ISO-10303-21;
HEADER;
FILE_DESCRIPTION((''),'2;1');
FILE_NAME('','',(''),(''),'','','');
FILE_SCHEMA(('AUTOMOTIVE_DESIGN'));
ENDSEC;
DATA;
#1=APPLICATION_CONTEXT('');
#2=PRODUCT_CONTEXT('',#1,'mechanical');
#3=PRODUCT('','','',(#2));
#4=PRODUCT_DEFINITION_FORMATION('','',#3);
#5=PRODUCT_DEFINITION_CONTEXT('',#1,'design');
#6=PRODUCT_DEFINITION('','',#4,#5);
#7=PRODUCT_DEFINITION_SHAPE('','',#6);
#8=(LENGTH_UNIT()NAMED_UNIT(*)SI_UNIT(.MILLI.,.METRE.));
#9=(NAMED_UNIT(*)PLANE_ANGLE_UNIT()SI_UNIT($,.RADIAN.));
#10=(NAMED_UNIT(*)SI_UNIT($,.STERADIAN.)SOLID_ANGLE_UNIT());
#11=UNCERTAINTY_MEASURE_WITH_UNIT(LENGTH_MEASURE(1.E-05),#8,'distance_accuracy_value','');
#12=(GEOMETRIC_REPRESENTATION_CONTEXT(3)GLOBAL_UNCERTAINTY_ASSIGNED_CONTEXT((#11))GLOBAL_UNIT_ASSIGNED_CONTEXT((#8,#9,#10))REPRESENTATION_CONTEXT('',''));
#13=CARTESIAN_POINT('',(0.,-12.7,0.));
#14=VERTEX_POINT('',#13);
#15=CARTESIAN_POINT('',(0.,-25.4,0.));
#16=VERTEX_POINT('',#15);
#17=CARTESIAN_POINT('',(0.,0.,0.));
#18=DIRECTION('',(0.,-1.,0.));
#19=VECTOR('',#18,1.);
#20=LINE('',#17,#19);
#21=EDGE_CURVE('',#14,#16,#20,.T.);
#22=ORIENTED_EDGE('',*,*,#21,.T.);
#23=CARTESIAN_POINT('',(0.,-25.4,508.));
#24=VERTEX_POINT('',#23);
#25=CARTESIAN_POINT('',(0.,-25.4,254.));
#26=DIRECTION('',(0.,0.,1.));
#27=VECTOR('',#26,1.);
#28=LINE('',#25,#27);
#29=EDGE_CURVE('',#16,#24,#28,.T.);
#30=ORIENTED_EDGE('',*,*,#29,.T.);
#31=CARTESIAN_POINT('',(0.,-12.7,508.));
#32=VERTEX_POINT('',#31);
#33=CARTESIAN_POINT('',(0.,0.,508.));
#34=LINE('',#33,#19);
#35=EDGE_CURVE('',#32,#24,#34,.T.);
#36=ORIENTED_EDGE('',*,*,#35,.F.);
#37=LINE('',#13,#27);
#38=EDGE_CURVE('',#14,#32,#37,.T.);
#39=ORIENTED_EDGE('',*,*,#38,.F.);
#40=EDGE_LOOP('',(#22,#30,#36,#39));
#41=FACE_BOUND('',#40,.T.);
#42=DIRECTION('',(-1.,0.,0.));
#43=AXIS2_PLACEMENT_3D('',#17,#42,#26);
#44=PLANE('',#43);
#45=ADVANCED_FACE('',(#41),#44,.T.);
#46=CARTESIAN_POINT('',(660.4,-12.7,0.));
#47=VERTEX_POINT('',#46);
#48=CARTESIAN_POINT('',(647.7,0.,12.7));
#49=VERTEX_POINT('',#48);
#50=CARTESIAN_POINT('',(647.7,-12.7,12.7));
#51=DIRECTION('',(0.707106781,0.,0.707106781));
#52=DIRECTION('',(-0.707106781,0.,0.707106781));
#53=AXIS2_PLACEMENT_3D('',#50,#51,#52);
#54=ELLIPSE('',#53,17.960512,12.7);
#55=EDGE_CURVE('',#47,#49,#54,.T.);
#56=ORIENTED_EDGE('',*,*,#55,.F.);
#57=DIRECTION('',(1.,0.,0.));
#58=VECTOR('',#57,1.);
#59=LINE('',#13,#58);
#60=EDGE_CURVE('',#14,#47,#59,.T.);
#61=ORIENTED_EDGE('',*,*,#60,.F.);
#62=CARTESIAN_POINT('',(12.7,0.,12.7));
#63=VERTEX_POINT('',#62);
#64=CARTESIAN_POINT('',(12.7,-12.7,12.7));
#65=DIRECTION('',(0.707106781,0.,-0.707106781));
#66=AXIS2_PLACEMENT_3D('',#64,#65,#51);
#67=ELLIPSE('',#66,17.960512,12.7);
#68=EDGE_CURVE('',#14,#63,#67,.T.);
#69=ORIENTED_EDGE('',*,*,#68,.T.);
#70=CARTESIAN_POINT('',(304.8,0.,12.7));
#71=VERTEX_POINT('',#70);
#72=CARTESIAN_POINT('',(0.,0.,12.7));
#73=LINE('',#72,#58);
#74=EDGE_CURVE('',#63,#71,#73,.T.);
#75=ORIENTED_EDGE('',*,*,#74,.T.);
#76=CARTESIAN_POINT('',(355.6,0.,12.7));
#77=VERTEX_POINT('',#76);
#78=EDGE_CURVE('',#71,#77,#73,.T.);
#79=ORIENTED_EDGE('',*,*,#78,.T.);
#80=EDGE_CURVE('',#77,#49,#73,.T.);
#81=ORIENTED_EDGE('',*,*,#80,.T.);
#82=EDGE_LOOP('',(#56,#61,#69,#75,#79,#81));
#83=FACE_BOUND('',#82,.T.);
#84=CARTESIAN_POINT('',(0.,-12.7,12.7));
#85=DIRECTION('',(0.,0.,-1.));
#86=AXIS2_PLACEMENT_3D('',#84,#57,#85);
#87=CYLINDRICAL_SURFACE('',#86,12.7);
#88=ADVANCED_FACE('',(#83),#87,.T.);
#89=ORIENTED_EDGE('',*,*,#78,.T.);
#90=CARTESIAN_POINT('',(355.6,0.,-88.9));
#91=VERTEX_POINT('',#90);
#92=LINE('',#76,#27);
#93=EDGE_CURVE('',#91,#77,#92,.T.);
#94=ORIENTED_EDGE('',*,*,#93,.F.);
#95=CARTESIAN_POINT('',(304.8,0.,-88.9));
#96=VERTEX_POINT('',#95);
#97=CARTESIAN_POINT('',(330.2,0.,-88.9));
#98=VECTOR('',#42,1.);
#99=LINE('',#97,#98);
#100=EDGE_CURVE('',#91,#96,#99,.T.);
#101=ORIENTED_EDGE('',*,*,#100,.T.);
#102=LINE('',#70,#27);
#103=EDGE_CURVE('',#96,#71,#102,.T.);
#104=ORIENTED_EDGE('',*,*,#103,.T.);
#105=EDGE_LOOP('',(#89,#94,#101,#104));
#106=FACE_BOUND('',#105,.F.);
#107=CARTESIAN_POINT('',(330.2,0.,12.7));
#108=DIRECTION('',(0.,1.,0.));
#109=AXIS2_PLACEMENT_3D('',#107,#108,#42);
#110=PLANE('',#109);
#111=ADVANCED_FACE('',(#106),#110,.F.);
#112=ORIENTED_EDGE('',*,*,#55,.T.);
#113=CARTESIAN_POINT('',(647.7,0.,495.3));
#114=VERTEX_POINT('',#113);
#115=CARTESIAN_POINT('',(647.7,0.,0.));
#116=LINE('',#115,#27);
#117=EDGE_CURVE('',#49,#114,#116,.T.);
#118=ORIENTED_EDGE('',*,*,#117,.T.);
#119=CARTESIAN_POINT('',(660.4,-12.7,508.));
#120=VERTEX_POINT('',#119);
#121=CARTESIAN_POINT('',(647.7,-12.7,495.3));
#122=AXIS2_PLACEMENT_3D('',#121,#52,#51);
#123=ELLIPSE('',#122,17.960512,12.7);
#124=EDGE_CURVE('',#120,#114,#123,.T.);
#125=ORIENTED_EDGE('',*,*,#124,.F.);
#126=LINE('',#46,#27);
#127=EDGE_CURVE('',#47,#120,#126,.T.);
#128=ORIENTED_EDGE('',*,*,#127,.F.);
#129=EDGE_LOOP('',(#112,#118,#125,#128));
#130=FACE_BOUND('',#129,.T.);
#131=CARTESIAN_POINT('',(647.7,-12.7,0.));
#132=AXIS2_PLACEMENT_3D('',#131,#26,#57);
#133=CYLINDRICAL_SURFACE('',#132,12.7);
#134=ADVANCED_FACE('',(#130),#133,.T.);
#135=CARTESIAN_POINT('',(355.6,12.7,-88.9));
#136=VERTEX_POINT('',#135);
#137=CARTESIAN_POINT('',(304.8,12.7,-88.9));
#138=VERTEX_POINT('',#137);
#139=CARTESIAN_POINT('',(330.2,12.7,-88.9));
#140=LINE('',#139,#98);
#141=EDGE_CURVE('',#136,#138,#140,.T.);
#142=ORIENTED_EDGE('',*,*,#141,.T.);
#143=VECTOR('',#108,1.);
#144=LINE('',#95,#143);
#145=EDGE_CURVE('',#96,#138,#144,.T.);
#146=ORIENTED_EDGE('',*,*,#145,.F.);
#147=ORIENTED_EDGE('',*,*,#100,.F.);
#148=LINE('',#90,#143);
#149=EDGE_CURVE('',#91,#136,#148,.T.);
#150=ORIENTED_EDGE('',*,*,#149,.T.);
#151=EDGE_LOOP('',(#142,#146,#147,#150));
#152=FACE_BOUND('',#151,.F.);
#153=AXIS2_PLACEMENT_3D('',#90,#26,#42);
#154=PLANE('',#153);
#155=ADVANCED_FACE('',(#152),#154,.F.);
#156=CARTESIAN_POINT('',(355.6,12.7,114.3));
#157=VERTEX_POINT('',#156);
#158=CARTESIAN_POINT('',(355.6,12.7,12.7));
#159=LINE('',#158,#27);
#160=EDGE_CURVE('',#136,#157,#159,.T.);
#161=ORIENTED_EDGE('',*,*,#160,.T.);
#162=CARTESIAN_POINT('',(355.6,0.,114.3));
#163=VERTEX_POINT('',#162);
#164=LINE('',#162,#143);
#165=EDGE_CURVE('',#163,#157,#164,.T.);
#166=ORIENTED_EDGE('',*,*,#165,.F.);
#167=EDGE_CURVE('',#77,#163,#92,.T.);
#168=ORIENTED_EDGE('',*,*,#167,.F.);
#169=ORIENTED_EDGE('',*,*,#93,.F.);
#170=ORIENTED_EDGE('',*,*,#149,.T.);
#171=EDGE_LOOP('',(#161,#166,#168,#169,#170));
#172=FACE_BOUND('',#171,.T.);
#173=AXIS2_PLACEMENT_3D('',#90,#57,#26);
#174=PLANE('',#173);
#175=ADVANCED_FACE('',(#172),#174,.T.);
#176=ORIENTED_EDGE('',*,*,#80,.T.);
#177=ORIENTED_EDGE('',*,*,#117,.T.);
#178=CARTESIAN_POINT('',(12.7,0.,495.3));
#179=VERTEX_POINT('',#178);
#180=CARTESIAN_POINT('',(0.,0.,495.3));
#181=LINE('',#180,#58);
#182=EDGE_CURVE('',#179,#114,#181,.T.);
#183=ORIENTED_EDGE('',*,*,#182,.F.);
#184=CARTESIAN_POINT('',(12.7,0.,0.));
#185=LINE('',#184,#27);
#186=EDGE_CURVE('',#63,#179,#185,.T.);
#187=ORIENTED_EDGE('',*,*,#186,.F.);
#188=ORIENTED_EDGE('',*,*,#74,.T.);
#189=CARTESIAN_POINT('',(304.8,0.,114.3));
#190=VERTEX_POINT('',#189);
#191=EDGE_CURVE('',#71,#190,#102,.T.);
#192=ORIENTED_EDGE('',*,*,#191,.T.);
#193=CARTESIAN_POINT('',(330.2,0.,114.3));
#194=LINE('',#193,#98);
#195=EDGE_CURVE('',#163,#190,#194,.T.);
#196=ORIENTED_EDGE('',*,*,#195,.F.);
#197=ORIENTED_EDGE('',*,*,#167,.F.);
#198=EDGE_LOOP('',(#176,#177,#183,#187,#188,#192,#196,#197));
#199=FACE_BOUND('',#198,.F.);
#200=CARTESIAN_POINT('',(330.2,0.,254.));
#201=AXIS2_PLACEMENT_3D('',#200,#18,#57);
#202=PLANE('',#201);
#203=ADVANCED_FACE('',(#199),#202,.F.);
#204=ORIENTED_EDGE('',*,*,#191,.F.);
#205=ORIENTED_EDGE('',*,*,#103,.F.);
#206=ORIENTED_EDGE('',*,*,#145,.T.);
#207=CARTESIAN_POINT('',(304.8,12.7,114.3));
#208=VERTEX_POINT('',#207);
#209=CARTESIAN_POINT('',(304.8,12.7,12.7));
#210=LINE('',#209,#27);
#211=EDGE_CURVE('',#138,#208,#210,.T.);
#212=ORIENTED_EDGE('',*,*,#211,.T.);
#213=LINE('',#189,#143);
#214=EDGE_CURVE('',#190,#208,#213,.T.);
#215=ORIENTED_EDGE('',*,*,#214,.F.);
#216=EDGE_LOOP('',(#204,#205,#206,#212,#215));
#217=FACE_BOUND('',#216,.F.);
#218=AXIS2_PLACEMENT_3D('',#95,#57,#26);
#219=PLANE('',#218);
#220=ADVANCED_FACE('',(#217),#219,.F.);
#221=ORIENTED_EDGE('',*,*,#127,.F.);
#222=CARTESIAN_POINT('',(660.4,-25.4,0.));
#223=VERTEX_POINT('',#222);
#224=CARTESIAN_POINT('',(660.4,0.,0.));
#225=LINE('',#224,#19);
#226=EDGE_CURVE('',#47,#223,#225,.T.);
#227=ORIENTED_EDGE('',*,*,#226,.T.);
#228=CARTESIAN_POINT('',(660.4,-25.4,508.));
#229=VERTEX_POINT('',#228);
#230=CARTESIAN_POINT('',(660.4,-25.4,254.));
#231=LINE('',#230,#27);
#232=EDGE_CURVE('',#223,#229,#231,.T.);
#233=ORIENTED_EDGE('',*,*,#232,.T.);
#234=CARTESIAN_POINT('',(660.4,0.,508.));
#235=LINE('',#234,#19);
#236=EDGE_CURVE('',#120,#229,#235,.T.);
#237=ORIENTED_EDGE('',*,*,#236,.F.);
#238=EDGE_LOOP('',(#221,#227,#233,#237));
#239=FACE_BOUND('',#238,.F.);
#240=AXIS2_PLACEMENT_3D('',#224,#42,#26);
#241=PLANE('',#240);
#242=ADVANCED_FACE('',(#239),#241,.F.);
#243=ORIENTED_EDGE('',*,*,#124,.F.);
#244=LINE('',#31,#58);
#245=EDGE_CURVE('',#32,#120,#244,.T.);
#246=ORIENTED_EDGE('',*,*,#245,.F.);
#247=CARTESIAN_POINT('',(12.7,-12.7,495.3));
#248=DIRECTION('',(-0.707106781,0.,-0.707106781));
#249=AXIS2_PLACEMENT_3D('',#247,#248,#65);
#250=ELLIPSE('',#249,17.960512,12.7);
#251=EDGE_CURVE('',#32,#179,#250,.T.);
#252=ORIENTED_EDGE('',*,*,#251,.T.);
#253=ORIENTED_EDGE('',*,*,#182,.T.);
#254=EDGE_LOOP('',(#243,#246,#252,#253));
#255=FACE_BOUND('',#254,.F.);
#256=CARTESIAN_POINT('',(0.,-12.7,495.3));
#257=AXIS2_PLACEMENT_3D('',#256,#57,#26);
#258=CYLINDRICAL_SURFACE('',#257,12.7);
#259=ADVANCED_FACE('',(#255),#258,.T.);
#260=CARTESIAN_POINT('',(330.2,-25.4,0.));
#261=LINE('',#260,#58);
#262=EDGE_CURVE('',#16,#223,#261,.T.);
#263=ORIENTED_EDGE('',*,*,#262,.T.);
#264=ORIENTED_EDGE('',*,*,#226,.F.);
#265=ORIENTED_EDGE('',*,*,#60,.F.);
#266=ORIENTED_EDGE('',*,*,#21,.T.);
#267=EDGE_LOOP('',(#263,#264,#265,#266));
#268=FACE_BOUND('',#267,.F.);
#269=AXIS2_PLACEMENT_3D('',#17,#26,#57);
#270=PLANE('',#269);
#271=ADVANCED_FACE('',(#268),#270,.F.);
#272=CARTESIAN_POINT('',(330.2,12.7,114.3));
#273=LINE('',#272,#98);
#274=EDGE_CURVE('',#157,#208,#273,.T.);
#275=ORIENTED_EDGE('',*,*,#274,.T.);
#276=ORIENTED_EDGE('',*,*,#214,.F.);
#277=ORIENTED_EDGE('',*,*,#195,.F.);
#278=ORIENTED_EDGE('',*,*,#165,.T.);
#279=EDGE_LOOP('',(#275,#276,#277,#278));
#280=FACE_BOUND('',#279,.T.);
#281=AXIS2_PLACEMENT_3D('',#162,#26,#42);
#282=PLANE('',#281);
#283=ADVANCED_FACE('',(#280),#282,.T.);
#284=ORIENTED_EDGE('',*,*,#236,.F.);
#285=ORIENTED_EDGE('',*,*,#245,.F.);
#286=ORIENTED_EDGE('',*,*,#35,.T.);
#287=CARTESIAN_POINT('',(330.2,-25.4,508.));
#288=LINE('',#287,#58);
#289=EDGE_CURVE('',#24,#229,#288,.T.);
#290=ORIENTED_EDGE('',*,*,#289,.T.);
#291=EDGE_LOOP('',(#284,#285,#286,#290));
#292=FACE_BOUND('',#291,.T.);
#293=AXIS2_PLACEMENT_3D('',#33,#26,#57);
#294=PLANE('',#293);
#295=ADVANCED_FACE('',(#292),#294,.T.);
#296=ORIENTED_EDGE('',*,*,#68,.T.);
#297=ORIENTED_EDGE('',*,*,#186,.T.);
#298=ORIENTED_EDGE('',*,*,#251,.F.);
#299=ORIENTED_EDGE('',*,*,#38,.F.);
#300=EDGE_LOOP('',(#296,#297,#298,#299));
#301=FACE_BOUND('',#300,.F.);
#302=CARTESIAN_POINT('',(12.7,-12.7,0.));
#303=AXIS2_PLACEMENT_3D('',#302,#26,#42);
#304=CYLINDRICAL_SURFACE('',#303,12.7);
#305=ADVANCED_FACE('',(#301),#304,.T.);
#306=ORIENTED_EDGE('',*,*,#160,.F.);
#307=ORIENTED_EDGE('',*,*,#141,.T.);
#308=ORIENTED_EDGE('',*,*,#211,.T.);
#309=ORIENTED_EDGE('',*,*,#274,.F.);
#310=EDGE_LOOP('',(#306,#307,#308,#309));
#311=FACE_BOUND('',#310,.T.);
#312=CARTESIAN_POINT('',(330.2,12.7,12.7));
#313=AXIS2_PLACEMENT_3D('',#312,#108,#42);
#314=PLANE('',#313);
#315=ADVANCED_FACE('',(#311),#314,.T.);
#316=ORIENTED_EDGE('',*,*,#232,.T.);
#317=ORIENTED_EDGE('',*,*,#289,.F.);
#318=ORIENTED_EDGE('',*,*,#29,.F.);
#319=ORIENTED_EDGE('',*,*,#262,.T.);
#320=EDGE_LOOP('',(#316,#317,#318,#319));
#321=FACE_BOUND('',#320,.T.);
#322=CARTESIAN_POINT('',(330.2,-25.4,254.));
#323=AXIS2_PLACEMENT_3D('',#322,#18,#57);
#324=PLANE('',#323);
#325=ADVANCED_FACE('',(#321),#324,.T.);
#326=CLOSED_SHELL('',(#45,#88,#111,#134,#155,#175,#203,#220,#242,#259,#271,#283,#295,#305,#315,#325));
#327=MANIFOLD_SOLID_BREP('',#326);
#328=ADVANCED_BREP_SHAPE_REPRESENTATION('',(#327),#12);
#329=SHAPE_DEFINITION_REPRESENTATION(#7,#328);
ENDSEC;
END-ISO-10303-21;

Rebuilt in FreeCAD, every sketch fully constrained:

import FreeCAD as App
import Part
import Sketcher
Q = App.Units.Quantity


def edges_at(feature, points):
    """Names of the edges that pass closest to the given points."""
    edges = feature.Shape.Edges
    near = lambda p: min(range(len(edges)), key=lambda i: edges[i].distToShape(Part.Vertex(*p))[0])
    return sorted({f"Edge{near(p) + 1}" for p in points})


def add_polygon(sketch, points):
    """Adds a closed chain of lines whose ends are joined by coincident constraints."""
    first, n = sketch.GeometryCount, len(points)
    for a, b in zip(points, points[1:] + points[:1]):
        sketch.addGeometry(Part.LineSegment(App.Vector(*a, 0), App.Vector(*b, 0)), False)
    for i in range(n):
        sketch.addConstraint(Sketcher.Constraint("Coincident", first + i, 2, first + (i + 1) % n, 1))

doc = App.newDocument("Part")
body = doc.addObject("PartDesign::Body", "Body")

sketch1 = doc.addObject("Sketcher::SketchObject", "Sketch")
body.addObject(sketch1)
sketch1.AttachmentSupport = (doc.XZ_Plane, [""])
sketch1.MapMode = "FlatFace"
add_polygon(sketch1, [(0, 508), (0, 0), (660, 0), (660, 508)])
sketch1.addConstraint(Sketcher.Constraint("Vertical", 0))
sketch1.addConstraint(Sketcher.Constraint("Horizontal", 1))
sketch1.addConstraint(Sketcher.Constraint("Vertical", 2))
sketch1.addConstraint(Sketcher.Constraint("Horizontal", 3))
sketch1.addConstraint(Sketcher.Constraint("Coincident", 0, 2, -1, 1))
sketch1.addConstraint(Sketcher.Constraint("DistanceX", 1, 1, 1, 2, Q("26 in")))
sketch1.addConstraint(Sketcher.Constraint("DistanceY", 0, 2, 0, 1, Q("20 in")))
pad1 = doc.addObject("PartDesign::Pad", "Pad")
body.addObject(pad1)
pad1.Profile = sketch1
pad1.Length = Q("1 in")
doc.recompute()

fillet = doc.addObject("PartDesign::Fillet", "Fillet")
body.addObject(fillet)
fillet.Base = (pad1, edges_at(pad1, [
    (330.2, 0, 508),
    (660.4, 0, 254),
    (330.2, 0, 0),
    (0, 0, 254),
]))
fillet.Radius = Q("0.5 in")

sketch2 = doc.addObject("Sketcher::SketchObject", "Sketch001")
body.addObject(sketch2)
sketch2.AttachmentSupport = (doc.XZ_Plane, [""])
sketch2.MapMode = "FlatFace"
add_polygon(sketch2, [(356, 114), (356, -89), (305, -89), (305, 114)])
sketch2.addConstraint(Sketcher.Constraint("Vertical", 0))
sketch2.addConstraint(Sketcher.Constraint("Horizontal", 1))
sketch2.addConstraint(Sketcher.Constraint("Vertical", 2))
sketch2.addConstraint(Sketcher.Constraint("Horizontal", 3))
sketch2.addConstraint(Sketcher.Constraint("DistanceX", 1, 2, 1, 1, Q("2 in")))
sketch2.addConstraint(Sketcher.Constraint("DistanceY", 0, 2, 0, 1, Q("8 in")))
sketch2.addConstraint(Sketcher.Constraint("DistanceX", -1, 1, 0, 2, Q("14 in")))
sketch2.addConstraint(Sketcher.Constraint("DistanceY", 0, 2, -1, 1, Q("3.5 in")))
pad2 = doc.addObject("PartDesign::Pad", "Pad001")
body.addObject(pad2)
pad2.Profile = sketch2
pad2.Length = Q("0.5 in")
pad2.Reversed = True

doc.recompute()
